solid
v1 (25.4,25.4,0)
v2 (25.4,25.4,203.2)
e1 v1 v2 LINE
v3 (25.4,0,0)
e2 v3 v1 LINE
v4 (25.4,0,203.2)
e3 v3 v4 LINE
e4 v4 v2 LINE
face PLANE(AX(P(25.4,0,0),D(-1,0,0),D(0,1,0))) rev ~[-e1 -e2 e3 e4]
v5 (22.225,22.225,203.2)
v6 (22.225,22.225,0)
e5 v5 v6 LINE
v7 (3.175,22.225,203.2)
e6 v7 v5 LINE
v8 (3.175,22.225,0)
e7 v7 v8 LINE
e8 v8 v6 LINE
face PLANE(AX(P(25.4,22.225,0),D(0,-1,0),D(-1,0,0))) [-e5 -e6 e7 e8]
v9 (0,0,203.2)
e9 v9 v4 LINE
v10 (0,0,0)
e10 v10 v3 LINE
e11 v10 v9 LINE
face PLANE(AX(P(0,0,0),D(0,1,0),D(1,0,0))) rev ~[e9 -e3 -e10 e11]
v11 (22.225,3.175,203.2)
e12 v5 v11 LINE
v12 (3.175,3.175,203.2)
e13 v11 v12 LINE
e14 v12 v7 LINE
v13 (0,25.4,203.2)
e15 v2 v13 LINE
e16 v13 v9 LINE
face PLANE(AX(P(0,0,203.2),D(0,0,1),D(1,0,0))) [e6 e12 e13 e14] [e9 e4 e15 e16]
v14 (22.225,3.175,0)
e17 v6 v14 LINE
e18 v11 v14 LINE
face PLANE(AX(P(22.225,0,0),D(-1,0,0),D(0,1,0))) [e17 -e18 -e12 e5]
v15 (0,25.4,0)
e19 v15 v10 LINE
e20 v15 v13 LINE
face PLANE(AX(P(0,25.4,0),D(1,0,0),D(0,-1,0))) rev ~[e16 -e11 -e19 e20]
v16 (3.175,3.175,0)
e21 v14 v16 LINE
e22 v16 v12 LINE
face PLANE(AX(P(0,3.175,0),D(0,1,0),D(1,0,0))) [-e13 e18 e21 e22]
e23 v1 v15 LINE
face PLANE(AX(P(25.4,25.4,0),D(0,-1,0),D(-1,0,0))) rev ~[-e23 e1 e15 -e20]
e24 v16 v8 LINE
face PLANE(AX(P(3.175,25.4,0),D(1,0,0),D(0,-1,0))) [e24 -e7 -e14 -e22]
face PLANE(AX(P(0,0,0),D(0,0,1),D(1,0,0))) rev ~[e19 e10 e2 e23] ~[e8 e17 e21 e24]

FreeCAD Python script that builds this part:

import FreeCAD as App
import Part
import Sketcher
from FreeCAD import Vector
Q = App.Units.Quantity


def faces_at(feature, points):
    """Names of the faces that lie closest to the given points."""
    faces = feature.Shape.Faces
    near = lambda p: min(range(len(faces)), key=lambda i: faces[i].distToShape(Part.Vertex(*p))[0])
    return sorted({f"Face{near(p) + 1}" for p in points})

doc = App.newDocument("Part")
params = doc.addObject("Spreadsheet::Sheet", "Params")
for row, (alias, value) in enumerate([
    ("sketch1_width", "1 in"),
    ("pad1_length", "8 in"),
    ("thickness_wall", "0.125 in"),
], start=1):
    params.set(f"A{row}", alias)
    params.set(f"B{row}", "=" + value)
    params.setAlias(f"B{row}", alias)

body = doc.addObject("PartDesign::Body", "Body")

sketch1 = body.newObject("Sketcher::SketchObject", "Sketch")
sketch1.AttachmentSupport = (doc.getObject("XY_Plane"), [""])
sketch1.MapMode = "FlatFace"
sketch1.addGeometry(Part.LineSegment(Vector(0, 25, 0), Vector(0, 0, 0)), False)
sketch1.addGeometry(Part.LineSegment(Vector(0, 0, 0), Vector(25, 0, 0)), False)
sketch1.addGeometry(Part.LineSegment(Vector(25, 0, 0), Vector(25, 25, 0)), False)
sketch1.addGeometry(Part.LineSegment(Vector(25, 25, 0), Vector(0, 25, 0)), False)
sketch1.addConstraint(Sketcher.Constraint("Coincident", 0, 2, 1, 1))
sketch1.addConstraint(Sketcher.Constraint("Coincident", 1, 2, 2, 1))
sketch1.addConstraint(Sketcher.Constraint("Coincident", 2, 2, 3, 1))
sketch1.addConstraint(Sketcher.Constraint("Coincident", 3, 2, 0, 1))
sketch1.addConstraint(Sketcher.Constraint("Vertical", 0))
sketch1.addConstraint(Sketcher.Constraint("Horizontal", 1))
sketch1.addConstraint(Sketcher.Constraint("Vertical", 2))
sketch1.addConstraint(Sketcher.Constraint("Horizontal", 3))
sketch1.addConstraint(Sketcher.Constraint("Coincident", 0, 2, -1, 1))
sketch1.addConstraint(Sketcher.Constraint("Equal", 3, 0))
sketch1.addConstraint(Sketcher.Constraint("DistanceX", 1, 1, 1, 2, Q("1 in")))
sketch1.setExpression("Constraints[10]", "Params.sketch1_width")
pad1 = body.newObject("PartDesign::Pad", "Pad")
pad1.Profile = sketch1
pad1.setExpression("Length", "Params.pad1_length")
doc.recompute()

thickness = body.newObject("PartDesign::Thickness", "Thickness")
thickness.Base = (pad1, faces_at(pad1, [(8.467, 16.933, 0), (8.467, 16.933, 203.2)]))
thickness.setExpression("Value", "Params.thickness_wall")
thickness.Reversed = True
thickness.Join = "Intersection"

doc.recompute()
